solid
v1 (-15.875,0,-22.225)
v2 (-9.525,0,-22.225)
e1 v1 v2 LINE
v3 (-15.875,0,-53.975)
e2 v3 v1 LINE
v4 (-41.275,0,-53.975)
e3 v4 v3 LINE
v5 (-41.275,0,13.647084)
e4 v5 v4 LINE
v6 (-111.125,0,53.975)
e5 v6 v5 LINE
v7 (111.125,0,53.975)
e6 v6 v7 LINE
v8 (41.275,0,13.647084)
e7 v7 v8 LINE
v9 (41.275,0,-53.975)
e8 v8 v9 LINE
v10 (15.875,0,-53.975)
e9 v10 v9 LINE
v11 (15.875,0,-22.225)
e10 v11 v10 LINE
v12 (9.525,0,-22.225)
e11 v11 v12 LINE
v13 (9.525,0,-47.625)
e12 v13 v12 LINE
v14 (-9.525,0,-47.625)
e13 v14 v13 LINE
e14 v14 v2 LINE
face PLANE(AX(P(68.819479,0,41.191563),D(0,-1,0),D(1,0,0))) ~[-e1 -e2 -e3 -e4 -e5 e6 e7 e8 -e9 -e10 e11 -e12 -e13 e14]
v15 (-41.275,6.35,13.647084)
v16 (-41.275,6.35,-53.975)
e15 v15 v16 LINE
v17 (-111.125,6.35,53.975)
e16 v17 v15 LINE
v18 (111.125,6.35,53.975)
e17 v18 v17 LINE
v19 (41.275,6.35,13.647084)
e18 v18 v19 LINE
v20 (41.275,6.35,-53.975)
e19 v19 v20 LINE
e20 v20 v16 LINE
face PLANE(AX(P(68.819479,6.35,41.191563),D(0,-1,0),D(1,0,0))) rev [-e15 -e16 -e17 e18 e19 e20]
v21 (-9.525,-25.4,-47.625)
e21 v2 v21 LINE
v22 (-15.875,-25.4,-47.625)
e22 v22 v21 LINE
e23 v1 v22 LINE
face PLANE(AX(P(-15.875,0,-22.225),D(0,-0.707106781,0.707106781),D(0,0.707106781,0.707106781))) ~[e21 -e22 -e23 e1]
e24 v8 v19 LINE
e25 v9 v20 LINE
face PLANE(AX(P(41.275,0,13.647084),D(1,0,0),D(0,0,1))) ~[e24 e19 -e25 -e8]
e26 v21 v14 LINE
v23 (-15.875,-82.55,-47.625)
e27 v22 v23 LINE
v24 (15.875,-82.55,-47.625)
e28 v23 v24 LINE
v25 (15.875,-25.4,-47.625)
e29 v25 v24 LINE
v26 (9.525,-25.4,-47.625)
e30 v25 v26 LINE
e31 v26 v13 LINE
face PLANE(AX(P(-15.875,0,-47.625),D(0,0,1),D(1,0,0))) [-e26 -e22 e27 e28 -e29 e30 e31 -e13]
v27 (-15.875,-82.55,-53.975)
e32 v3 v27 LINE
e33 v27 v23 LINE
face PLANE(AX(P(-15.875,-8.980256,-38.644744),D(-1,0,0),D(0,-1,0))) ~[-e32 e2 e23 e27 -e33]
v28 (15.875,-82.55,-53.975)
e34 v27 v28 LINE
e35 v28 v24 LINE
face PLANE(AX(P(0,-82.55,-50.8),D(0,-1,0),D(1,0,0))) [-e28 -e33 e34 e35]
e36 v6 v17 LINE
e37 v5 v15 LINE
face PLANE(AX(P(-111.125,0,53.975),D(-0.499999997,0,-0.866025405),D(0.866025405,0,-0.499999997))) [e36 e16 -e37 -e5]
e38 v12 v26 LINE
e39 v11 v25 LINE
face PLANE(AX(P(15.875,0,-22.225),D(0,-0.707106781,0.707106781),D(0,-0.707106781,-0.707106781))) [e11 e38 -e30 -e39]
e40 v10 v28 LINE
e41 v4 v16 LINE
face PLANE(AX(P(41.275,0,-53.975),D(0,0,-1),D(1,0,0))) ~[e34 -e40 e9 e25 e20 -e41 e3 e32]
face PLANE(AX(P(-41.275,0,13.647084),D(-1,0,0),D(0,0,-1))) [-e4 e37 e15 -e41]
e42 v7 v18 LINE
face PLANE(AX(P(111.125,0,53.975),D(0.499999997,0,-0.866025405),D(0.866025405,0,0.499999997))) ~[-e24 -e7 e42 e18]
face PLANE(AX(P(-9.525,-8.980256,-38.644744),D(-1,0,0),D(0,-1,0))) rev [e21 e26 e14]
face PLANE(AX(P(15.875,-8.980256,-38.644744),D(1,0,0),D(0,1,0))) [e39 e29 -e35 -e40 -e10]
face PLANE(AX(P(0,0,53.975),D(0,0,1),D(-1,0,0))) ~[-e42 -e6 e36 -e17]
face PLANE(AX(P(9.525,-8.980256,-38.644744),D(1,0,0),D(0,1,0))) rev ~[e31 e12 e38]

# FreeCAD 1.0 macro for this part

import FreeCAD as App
import Part
import Sketcher
from FreeCAD import Vector
Q = App.Units.Quantity


def add_polygon(sketch, points):
    """Adds a closed chain of lines whose ends are joined by coincident constraints."""
    first, n = sketch.GeometryCount, len(points)
    for a, b in zip(points, points[1:] + points[:1]):
        sketch.addGeometry(Part.LineSegment(App.Vector(*a, 0), App.Vector(*b, 0)), False)
    for i in range(n):
        sketch.addConstraint(Sketcher.Constraint("Coincident", first + i, 2, first + (i + 1) % n, 1))

doc = App.newDocument("Part")
body = doc.addObject("PartDesign::Body", "Body")

sketch1 = body.newObject("Sketcher::SketchObject", "Sketch")
sketch1.AttachmentSupport = (doc.getObject("XZ_Plane"), [""])
sketch1.MapMode = "FlatFace"
add_polygon(sketch1, [(-111, 54), (-41, 14), (-41, -54), (0, -54), (0, 54)])
sketch1.addConstraint([
    Sketcher.Constraint("Vertical", 1),
    Sketcher.Constraint("Horizontal", 2),
    Sketcher.Constraint("Vertical", 3),
    Sketcher.Constraint("Horizontal", 4),
    Sketcher.Constraint("Symmetric", 2, 2, 3, 2, -1, 1),
    Sketcher.Constraint("Angle", 0, Q("-30 deg")),
    Sketcher.Constraint("DistanceY", 3, 1, 3, 2, Q("4.25 in")),
    Sketcher.Constraint("DistanceX", 2, 1, 2, 2, Q("1.625 in")),
    Sketcher.Constraint("DistanceX", 4, 2, 4, 1, Q("4.375 in")),
])
pad1 = body.newObject("PartDesign::Pad", "Pad")
pad1.Profile = sketch1
pad1.Length = Q("0.25 in")
pad1.Reversed = True
body2 = doc.addObject("PartDesign::Body", "Body001")
doc.recompute()

body2.BaseFeature = body
doc.recompute()

mirroring = doc.addObject("Part::Mirroring", "Mirroring")
mirroring.Source = body
mirroring.Base = Vector(0, 0, 0)
mirroring.Normal = Vector(1, 0, 0)
body3 = doc.addObject("PartDesign::Body", "Body002")
body3.BaseFeature = mirroring
boolean = body2.newObject("PartDesign::Boolean", "Boolean")
boolean.Type = "Fuse"
boolean.addObjects([body3])
doc.recompute()

sketch2 = body2.newObject("Sketcher::SketchObject", "Sketch001")
sketch2.AttachmentSupport = (doc.getObject("XZ_Plane001"), [""])
sketch2.MapMode = "FlatFace"
add_polygon(sketch2, [(-16, -48), (-16, -54), (16, -54), (16, -48)])
sketch2.addConstraint([
    Sketcher.Constraint("Vertical", 0),
    Sketcher.Constraint("Horizontal", 1),
    Sketcher.Constraint("Vertical", 2),
    Sketcher.Constraint("Horizontal", 3),
    Sketcher.Constraint("DistanceX", 1, 1, 1, 2, Q("1.25 in")),
    Sketcher.Constraint("DistanceY", 0, 2, 0, 1, Q("0.25 in")),
    Sketcher.Constraint("DistanceX", 0, 2, -1, 1, Q("0.625 in")),
    Sketcher.Constraint("DistanceY", 0, 2, -1, 1, Q("2.125 in")),
])
pad2 = body2.newObject("PartDesign::Pad", "Pad001")
pad2.Profile = sketch2
pad2.Length = Q("3.25 in")

sketch3 = body2.newObject("Sketcher::SketchObject", "Sketch002")
sketch3.AttachmentSupport = (doc.getObject("YZ_Plane001"), [""])
sketch3.MapMode = "FlatFace"
sketch3.AttachmentOffset = App.Placement(Vector(0, 0, 0.625 * 25.4), App.Rotation())
add_polygon(sketch3, [(0, -22), (-25, -48), (0, -48)])
sketch3.addConstraint([
    Sketcher.Constraint("Horizontal", 1),
    Sketcher.Constraint("Vertical", 2),
    Sketcher.Constraint("PointOnObject", 1, 2, -2),
    Sketcher.Constraint("Equal", 1, 2),
    Sketcher.Constraint("DistanceX", 1, 1, 1, 2, Q("1 in")),
    Sketcher.Constraint("DistanceY", 0, 2, -1, 1, Q("1.875 in")),
])
pad3 = body2.newObject("PartDesign::Pad", "Pad002")
pad3.Profile = sketch3
pad3.Length = Q("0.25 in")
pad3.Reversed = True
body4 = doc.addObject("PartDesign::Body", "Body003")
doc.recompute()

body4.BaseFeature = body2
doc.recompute()

mirroring2 = doc.addObject("Part::Mirroring", "Mirroring001")
mirroring2.Source = body2
mirroring2.Base = Vector(0, 0, 0)
mirroring2.Normal = Vector(1, 0, 0)
body5 = doc.addObject("PartDesign::Body", "Body004")
body5.BaseFeature = mirroring2
boolean2 = body4.newObject("PartDesign::Boolean", "Boolean001")
boolean2.Type = "Fuse"
boolean2.addObjects([body5])
doc.recompute()
mirroring.Visibility = False
mirroring2.Visibility = False

doc.recompute()
